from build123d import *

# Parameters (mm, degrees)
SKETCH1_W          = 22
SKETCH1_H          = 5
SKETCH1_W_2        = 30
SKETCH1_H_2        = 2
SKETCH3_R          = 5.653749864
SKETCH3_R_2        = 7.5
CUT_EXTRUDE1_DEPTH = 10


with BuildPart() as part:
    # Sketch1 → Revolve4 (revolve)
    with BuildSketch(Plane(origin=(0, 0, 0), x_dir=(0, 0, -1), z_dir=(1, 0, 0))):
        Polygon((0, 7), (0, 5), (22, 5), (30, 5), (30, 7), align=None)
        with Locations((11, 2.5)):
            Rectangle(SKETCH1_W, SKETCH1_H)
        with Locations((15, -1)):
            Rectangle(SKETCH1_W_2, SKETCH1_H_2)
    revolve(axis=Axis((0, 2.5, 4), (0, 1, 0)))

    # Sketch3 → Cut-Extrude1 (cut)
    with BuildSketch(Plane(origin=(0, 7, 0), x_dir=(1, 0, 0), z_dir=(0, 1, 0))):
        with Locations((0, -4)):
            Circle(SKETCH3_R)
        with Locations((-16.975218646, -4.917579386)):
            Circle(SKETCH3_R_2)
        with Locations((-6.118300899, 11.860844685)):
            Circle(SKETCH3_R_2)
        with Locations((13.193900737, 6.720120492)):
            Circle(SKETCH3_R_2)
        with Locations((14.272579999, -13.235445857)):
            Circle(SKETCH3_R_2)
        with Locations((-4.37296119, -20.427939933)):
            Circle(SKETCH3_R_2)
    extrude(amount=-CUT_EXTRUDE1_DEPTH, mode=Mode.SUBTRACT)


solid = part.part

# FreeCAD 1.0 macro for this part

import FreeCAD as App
import Part
import Sketcher
from FreeCAD import Vector
Q = App.Units.Quantity


def add_polygon(sketch, points):
    """Adds a closed chain of lines whose ends are joined by coincident constraints."""
    first, n = sketch.GeometryCount, len(points)
    for a, b in zip(points, points[1:] + points[:1]):
        sketch.addGeometry(Part.LineSegment(App.Vector(*a, 0), App.Vector(*b, 0)), False)
    for i in range(n):
        sketch.addConstraint(Sketcher.Constraint("Coincident", first + i, 2, first + (i + 1) % n, 1))

doc = App.newDocument("Part")
body = doc.addObject("PartDesign::Body", "Body")

# Sketch on YZ plane
sketch1 = body.newObject("Sketcher::SketchObject", "Sketch")
sketch1.AttachmentSupport = (doc.getObject("YZ_Plane"), [""])
sketch1.MapMode = "FlatFace"
add_polygon(sketch1, [(7, 0), (-2, 0), (-2, -30), (0, -30), (0, -22), (5, -22), (5, -30), (7, -30)])  # lines 0-7
sketch1.addGeometry(Part.LineSegment(Vector(-2, 4, 0), Vector(7, 4, 0)), True)  # axis
sketch1.addConstraint([
    Sketcher.Constraint("Horizontal", 0),
    Sketcher.Constraint("Vertical", 1),
    Sketcher.Constraint("Horizontal", 2),
    Sketcher.Constraint("Vertical", 3),
    Sketcher.Constraint("Horizontal", 4),
    Sketcher.Constraint("Vertical", 5),
    Sketcher.Constraint("Horizontal", 6),
    Sketcher.Constraint("Vertical", 7),
    Sketcher.Constraint("Horizontal", 8),
    Sketcher.Constraint("PointOnObject", 0, 2, -1),
    Sketcher.Constraint("PointOnObject", 2, 2, -2),
    Sketcher.Constraint("Horizontal", 2, 2, 5, 2),
    Sketcher.Constraint("Vertical", 1, 2, 8, 1),
    Sketcher.Constraint("Vertical", 7, 2, 8, 2),
    Sketcher.Constraint("Equal", 2, 6),
    Sketcher.Constraint("DistanceX", 0, 2, 0, 1, Q("9 mm")),
    Sketcher.Constraint("DistanceX", 2, 1, 2, 2, Q("2 mm")),
    Sketcher.Constraint("DistanceY", 1, 2, 1, 1, Q("30 mm")),
    Sketcher.Constraint("DistanceY", 3, 1, 3, 2, Q("8 mm")),
    Sketcher.Constraint("DistanceY", -1, 1, 8, 1, Q("4 mm")),
])
revolution = body.newObject("PartDesign::Revolution", "Revolution")
revolution.Profile = sketch1
revolution.ReferenceAxis = (sketch1, ["Axis0"])
revolution.Angle = 360

# Sketch on XZ plane
sketch2 = body.newObject("Sketcher::SketchObject", "Sketch001")
sketch2.AttachmentSupport = (doc.getObject("XZ_Plane"), [""])
sketch2.MapMode = "FlatFace"
sketch2.AttachmentOffset = App.Placement(Vector(0, 0, -7), App.Rotation())
sketch2.addGeometry([
    Part.Circle(Vector(0, 4, 0), Vector(0, 0, 1), 6),  # 0
    Part.Circle(Vector(-17, 5, 0), Vector(0, 0, 1), 8),  # 1
    Part.Circle(Vector(-6, -12, 0), Vector(0, 0, 1), 8),  # 2
    Part.Circle(Vector(13, -7, 0), Vector(0, 0, 1), 8),  # 3
    Part.Circle(Vector(14, 13, 0), Vector(0, 0, 1), 8),  # 4
    Part.Circle(Vector(-4, 20, 0), Vector(0, 0, 1), 8),  # 5
], False)
sketch2.addConstraint([
    Sketcher.Constraint("Equal", 1, 2),
    Sketcher.Constraint("Equal", 2, 3),
    Sketcher.Constraint("Equal", 3, 4),
    Sketcher.Constraint("Equal", 4, 5),
    Sketcher.Constraint("PointOnObject", 0, 3, -2),
    Sketcher.Constraint("Diameter", 1, Q("15 mm")),
    Sketcher.Constraint("DistanceY", -1, 1, 0, 3, Q("4 mm")),
    Sketcher.Constraint("Diameter", 0, Q("11.3075 mm")),
    Sketcher.Constraint("DistanceX", 2, 3, -1, 1, Q("6.118301 mm")),
    Sketcher.Constraint("DistanceX", -1, 1, 3, 3, Q("13.193901 mm")),
    Sketcher.Constraint("DistanceY", 3, 3, 1, 3, Q("11.6377 mm")),
    Sketcher.Constraint("DistanceX", 1, 3, 4, 3, Q("31.247799 mm")),
    Sketcher.Constraint("DistanceX", 1, 3, -1, 1, Q("16.975219 mm")),
    Sketcher.Constraint("DistanceY", -1, 1, 1, 3, Q("4.917579 mm")),
    Sketcher.Constraint("DistanceX", 5, 3, -1, 1, Q("4.372961 mm")),
    Sketcher.Constraint("DistanceY", -1, 1, 5, 3, Q("20.42794 mm")),
    Sketcher.Constraint("DistanceY", 2, 3, 4, 3, Q("25.096291 mm")),
    Sketcher.Constraint("DistanceY", 2, 3, -1, 1, Q("11.860845 mm")),
])
pocket1 = body.newObject("PartDesign::Pocket", "Pocket")
pocket1.Profile = sketch2
pocket1.Length = 10
pocket1.Reversed = True

doc.recompute()
